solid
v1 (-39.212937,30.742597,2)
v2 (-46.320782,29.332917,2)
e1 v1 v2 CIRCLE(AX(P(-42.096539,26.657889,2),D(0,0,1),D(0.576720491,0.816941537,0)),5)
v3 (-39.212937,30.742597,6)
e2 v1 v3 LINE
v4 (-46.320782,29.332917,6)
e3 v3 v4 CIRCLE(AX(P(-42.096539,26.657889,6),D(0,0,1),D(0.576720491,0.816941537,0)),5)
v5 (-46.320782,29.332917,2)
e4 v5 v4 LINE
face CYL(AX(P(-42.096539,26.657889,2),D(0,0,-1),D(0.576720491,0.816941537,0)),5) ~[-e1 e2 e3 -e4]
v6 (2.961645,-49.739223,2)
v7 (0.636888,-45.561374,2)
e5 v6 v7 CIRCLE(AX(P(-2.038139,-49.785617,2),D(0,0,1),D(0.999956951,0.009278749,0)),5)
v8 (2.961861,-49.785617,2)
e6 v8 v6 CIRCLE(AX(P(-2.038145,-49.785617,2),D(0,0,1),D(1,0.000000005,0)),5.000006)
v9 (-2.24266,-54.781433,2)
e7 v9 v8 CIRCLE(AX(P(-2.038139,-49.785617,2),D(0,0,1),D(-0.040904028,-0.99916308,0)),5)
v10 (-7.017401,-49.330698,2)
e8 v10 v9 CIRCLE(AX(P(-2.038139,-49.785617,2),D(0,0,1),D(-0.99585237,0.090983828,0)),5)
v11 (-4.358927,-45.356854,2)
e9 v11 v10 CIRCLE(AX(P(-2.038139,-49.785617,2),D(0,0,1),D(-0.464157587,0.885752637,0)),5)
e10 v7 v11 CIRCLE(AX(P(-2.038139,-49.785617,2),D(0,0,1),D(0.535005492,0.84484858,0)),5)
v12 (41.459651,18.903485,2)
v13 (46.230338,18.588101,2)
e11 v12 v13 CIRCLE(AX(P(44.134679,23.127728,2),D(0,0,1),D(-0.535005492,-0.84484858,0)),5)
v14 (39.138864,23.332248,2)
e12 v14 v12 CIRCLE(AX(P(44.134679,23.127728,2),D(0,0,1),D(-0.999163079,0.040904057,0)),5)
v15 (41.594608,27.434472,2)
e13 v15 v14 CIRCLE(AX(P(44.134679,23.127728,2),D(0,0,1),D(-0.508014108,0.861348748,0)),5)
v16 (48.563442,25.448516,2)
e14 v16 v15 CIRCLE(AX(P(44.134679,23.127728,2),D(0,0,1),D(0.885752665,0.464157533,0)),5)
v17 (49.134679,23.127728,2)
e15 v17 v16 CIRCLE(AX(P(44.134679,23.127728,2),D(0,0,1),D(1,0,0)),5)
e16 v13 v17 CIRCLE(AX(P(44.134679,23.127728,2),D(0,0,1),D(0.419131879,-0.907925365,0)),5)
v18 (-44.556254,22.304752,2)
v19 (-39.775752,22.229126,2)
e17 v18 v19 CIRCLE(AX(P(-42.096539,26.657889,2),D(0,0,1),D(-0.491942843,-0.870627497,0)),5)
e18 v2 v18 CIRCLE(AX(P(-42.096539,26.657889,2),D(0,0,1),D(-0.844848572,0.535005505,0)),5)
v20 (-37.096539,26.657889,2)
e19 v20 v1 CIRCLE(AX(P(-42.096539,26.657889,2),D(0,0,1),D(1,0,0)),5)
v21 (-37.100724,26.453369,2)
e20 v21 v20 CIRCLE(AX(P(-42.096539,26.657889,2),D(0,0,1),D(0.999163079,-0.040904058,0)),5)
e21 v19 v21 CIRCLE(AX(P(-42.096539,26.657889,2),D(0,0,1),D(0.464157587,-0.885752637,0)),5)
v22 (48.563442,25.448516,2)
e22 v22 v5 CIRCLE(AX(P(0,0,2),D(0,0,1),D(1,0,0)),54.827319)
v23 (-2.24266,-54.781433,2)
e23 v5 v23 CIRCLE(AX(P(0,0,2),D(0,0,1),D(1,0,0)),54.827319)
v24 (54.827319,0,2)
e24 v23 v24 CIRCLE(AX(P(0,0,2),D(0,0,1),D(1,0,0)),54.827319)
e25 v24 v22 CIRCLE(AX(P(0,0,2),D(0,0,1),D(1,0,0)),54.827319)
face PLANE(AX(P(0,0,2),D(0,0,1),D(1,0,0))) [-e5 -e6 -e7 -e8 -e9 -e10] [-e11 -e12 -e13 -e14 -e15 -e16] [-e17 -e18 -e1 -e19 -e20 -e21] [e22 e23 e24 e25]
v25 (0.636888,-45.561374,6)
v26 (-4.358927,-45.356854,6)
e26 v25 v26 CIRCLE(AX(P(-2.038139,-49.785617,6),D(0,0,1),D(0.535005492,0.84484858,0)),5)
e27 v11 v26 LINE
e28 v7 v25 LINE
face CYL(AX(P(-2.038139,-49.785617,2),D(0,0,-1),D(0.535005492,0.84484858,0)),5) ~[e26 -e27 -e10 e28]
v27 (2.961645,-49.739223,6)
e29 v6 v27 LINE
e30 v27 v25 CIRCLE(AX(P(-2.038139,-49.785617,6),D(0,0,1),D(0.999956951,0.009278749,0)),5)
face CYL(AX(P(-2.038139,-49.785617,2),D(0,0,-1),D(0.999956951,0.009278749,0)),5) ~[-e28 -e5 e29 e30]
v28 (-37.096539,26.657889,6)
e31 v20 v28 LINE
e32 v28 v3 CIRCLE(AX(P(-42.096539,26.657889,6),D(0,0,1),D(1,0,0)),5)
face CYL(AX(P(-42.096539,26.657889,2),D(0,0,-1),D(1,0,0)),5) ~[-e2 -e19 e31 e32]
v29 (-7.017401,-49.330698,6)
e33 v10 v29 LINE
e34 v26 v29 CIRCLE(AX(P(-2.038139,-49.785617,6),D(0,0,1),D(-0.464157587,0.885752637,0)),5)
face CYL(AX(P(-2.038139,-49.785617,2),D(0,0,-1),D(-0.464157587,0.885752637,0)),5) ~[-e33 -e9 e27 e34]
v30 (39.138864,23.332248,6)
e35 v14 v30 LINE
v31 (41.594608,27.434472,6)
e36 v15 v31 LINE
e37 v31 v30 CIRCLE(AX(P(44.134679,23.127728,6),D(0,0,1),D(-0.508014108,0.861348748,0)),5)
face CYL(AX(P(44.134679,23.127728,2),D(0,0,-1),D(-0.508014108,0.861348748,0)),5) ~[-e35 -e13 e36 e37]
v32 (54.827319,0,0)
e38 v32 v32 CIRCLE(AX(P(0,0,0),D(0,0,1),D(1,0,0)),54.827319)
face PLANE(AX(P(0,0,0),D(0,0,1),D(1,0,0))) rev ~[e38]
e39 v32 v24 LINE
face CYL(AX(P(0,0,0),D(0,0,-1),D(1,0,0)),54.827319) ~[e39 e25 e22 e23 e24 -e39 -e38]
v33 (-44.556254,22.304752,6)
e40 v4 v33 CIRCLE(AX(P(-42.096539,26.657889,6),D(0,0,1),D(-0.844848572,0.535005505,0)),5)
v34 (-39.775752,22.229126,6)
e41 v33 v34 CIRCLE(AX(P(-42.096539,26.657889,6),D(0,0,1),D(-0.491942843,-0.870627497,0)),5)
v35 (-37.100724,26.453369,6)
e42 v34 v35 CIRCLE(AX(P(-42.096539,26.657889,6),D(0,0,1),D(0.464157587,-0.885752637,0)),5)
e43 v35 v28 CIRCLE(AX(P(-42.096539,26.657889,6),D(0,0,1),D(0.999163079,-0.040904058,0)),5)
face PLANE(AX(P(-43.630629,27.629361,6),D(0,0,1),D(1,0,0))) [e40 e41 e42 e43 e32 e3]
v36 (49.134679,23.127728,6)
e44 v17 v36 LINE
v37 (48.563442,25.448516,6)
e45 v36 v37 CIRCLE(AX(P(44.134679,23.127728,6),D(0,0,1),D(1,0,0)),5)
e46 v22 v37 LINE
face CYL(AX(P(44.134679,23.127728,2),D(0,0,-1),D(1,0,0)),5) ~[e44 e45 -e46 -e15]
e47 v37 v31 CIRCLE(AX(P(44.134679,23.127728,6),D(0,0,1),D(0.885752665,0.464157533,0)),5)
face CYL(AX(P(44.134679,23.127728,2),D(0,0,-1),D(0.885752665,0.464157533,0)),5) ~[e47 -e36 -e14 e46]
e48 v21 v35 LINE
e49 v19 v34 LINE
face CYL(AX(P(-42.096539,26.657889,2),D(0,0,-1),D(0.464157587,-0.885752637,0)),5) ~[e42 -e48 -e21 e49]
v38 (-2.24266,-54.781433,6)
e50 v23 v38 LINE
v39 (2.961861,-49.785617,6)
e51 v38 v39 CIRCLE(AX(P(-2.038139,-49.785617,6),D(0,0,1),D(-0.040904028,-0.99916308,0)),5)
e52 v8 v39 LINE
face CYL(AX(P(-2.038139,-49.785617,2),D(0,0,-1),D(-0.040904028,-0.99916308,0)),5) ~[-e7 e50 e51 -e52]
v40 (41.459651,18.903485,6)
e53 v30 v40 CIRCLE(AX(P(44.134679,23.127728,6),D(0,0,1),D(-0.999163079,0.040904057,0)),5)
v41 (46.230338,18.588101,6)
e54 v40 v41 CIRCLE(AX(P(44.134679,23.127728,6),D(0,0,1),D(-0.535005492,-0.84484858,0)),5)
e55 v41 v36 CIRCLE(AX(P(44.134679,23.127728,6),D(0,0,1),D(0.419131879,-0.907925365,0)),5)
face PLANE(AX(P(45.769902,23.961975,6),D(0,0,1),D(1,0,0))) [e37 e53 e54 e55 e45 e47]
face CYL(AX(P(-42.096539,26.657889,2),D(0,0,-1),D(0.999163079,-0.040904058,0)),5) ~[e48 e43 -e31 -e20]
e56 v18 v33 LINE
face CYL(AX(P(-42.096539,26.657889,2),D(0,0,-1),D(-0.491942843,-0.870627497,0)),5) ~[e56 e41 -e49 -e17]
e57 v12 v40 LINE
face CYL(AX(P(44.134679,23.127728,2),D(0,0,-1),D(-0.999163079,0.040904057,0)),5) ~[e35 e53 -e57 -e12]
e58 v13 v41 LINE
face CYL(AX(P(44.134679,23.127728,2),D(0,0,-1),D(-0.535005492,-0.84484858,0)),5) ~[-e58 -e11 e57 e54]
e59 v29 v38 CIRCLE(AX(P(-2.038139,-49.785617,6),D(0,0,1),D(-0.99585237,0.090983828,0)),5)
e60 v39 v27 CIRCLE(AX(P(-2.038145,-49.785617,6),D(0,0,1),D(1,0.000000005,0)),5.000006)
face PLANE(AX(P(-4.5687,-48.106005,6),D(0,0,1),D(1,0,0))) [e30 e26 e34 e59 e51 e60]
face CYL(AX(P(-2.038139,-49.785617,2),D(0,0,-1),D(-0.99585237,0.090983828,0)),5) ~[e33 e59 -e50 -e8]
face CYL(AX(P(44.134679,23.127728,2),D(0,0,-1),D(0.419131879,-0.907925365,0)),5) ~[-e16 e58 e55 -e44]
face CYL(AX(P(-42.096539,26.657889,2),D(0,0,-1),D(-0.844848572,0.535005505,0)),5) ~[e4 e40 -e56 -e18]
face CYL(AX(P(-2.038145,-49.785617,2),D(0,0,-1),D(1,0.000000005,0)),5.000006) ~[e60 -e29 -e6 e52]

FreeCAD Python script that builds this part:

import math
import FreeCAD as App
import Part
import Sketcher
from FreeCAD import Vector
Q = App.Units.Quantity

doc = App.newDocument("Part")
body = doc.addObject("PartDesign::Body", "Body")

sketch1 = doc.addObject("Sketcher::SketchObject", "Sketch")
body.addObject(sketch1)
sketch1.AttachmentSupport = (doc.XY_Plane, [""])
sketch1.MapMode = "FlatFace"
sketch1.addGeometry(Part.Circle(Vector(0, 0, 0), Vector(0, 0, 1), 54.827319), False)
sketch1.addConstraint([
    Sketcher.Constraint("Coincident", 0, 3, -1, 1),
    Sketcher.Constraint("Diameter", 0, Q("109.654637 mm")),
])
pad1 = doc.addObject("PartDesign::Pad", "Pad")
body.addObject(pad1)
pad1.Profile = sketch1
pad1.Length = 2

sketch2 = doc.addObject("Sketcher::SketchObject", "Sketch001")
body.addObject(sketch2)
sketch2.AttachmentSupport = (doc.XY_Plane, [""])
sketch2.MapMode = "FlatFace"
sketch2.AttachmentOffset = App.Placement(Vector(0, 0, 2), App.Rotation())
sketch2.addGeometry([
    Part.ArcOfCircle(Part.Circle(Vector(-42.096539, 26.657889, 0), Vector(0, 0, 1), 5), math.radians(54.779791), math.radians(147.655715)),
    Part.ArcOfCircle(Part.Circle(Vector(-42.096539, 26.657889, 0), Vector(0, 0, 1), 5), math.radians(147.655715), math.radians(240.531641)),
    Part.ArcOfCircle(Part.Circle(Vector(-42.096539, 26.657889, 0), Vector(0, 0, 1), 5), math.radians(-119.468359), math.radians(-62.344284)),
    Part.ArcOfCircle(Part.Circle(Vector(-42.096539, 26.657889, 0), Vector(0, 0, 1), 5), math.radians(-62.344284), math.radians(-2.344284)),
    Part.ArcOfCircle(Part.Circle(Vector(-42.096539, 26.657889, 0), Vector(0, 0, 1), 5), math.radians(-2.344284), math.radians(0)),
    Part.ArcOfCircle(Part.Circle(Vector(-42.096539, 26.657889, 0), Vector(0, 0, 1), 5), math.radians(0), math.radians(54.779791)),
    Part.ArcOfCircle(Part.Circle(Vector(44.134679, 23.127728, 0), Vector(0, 0, 1), 5), math.radians(-65.220209), math.radians(0)),
    Part.ArcOfCircle(Part.Circle(Vector(44.134679, 23.127728, 0), Vector(0, 0, 1), 5), math.radians(0), math.radians(27.655713)),
    Part.ArcOfCircle(Part.Circle(Vector(44.134679, 23.127728, 0), Vector(0, 0, 1), 5), math.radians(27.655713), math.radians(120.531641)),
    Part.ArcOfCircle(Part.Circle(Vector(44.134679, 23.127728, 0), Vector(0, 0, 1), 5), math.radians(120.531641), math.radians(177.655716)),
    Part.ArcOfCircle(Part.Circle(Vector(44.134679, 23.127728, 0), Vector(0, 0, 1), 5), math.radians(177.655716), math.radians(237.655716)),
    Part.ArcOfCircle(Part.Circle(Vector(44.134679, 23.127728, 0), Vector(0, 0, 1), 5), math.radians(-122.344284), math.radians(-65.220209)),
    Part.ArcOfCircle(Part.Circle(Vector(-2.038139, -49.785617, 0), Vector(0, 0, 1), 5), math.radians(57.655716), math.radians(117.655716)),
    Part.ArcOfCircle(Part.Circle(Vector(-2.038139, -49.785617, 0), Vector(0, 0, 1), 5), math.radians(117.655716), math.radians(174.779791)),
    Part.ArcOfCircle(Part.Circle(Vector(-2.038139, -49.785617, 0), Vector(0, 0, 1), 5), math.radians(174.779791), math.radians(267.655718)),
    Part.ArcOfCircle(Part.Circle(Vector(-2.038139, -49.785617, 0), Vector(0, 0, 1), 5), math.radians(-92.344282), math.radians(0)),
    Part.ArcOfCircle(Part.Circle(Vector(-2.038145, -49.785617, 0), Vector(0, 0, 1), 5.000006), math.radians(0), math.radians(0.53164)),
    Part.ArcOfCircle(Part.Circle(Vector(-2.038139, -49.785617, 0), Vector(0, 0, 1), 5), math.radians(0.531641), math.radians(57.655716)),
], False)
sketch2.addConstraint([
    Sketcher.Constraint("Tangent", 0, 2, 1, 1),
    Sketcher.Constraint("Tangent", 1, 2, 2, 1),
    Sketcher.Constraint("Tangent", 2, 2, 3, 1),
    Sketcher.Constraint("Tangent", 3, 2, 4, 1),
    Sketcher.Constraint("Tangent", 4, 2, 5, 1),
    Sketcher.Constraint("Tangent", 5, 2, 0, 1),
    Sketcher.Constraint("Tangent", 6, 2, 7, 1),
    Sketcher.Constraint("Tangent", 7, 2, 8, 1),
    Sketcher.Constraint("Tangent", 8, 2, 9, 1),
    Sketcher.Constraint("Tangent", 9, 2, 10, 1),
    Sketcher.Constraint("Tangent", 10, 2, 11, 1),
    Sketcher.Constraint("Tangent", 11, 2, 6, 1),
    Sketcher.Constraint("Tangent", 12, 2, 13, 1),
    Sketcher.Constraint("Tangent", 13, 2, 14, 1),
    Sketcher.Constraint("Tangent", 14, 2, 15, 1),
    Sketcher.Constraint("Tangent", 15, 2, 16, 1),
    Sketcher.Constraint("Tangent", 16, 2, 17, 1),
    Sketcher.Constraint("Tangent", 17, 2, 12, 1),
    Sketcher.Constraint("Coincident", 2, 3, 0, 3),
    Sketcher.Constraint("Coincident", 8, 3, 6, 3),
    Sketcher.Constraint("Coincident", 14, 3, 12, 3),
    Sketcher.Constraint("Equal", 2, 3),
    Sketcher.Constraint("Equal", 5, 6),
    Sketcher.Constraint("Equal", 8, 9),
    Sketcher.Constraint("Equal", 11, 12),
    Sketcher.Constraint("Equal", 15, 17),
    Sketcher.Constraint("Horizontal", 5, 3, 4, 2),
    Sketcher.Constraint("Horizontal", 11, 3, 6, 2),
    Sketcher.Constraint("Horizontal", 17, 3, 15, 2),
    Sketcher.Constraint("Radius", 0, Q("5 mm")),
    Sketcher.Constraint("DistanceY", -1, 1, 11, 2, Q("18.588101 mm")),
    Sketcher.Constraint("DistanceX", 13, 2, -1, 1, Q("7.017401 mm")),
    Sketcher.Constraint("DistanceY", 13, 2, -1, 1, Q("49.330698 mm")),
    Sketcher.Constraint("DistanceX", 4, 3, 12, 3, Q("40.0584 mm")),
    Sketcher.Constraint("DistanceX", 0, 3, -1, 1, Q("42.096539 mm")),
    Sketcher.Constraint("DistanceY", -1, 1, 0, 3, Q("26.657889 mm")),
    Sketcher.Constraint("DistanceX", -1, 1, 6, 3, Q("44.134679 mm")),
    Sketcher.Constraint("DistanceY", -1, 1, 6, 3, Q("23.127728 mm")),
    Sketcher.Constraint("DistanceY", -1, 1, 1, 2, Q("22.304752 mm")),
    Sketcher.Constraint("DistanceX", 2, 2, -1, 1, Q("39.775752 mm")),
    Sketcher.Constraint("DistanceY", -1, 1, 3, 2, Q("26.453369 mm")),
    Sketcher.Constraint("DistanceX", -1, 1, 8, 2, Q("41.594608 mm")),
    Sketcher.Constraint("DistanceY", -1, 1, 9, 2, Q("23.332248 mm")),
    Sketcher.Constraint("DistanceX", -1, 1, 10, 2, Q("41.459651 mm")),
    Sketcher.Constraint("DistanceX", 14, 2, -1, 1, Q("2.24266 mm")),
    Sketcher.Constraint("DistanceY", 16, 2, 17, 2, Q("4.177849 mm")),
    Sketcher.Constraint("DistanceY", 17, 2, 12, 2, Q("0.20452 mm")),
    Sketcher.Constraint("DistanceX", 0, 2, -1, 1, Q("46.320782 mm")),
    Sketcher.Constraint("DistanceX", 5, 2, -1, 1, Q("39.212937 mm")),
    Sketcher.Constraint("DistanceX", -1, 1, 7, 2, Q("48.563442 mm")),
    Sketcher.Constraint("DistanceX", 12, 2, -1, 1, Q("4.358927 mm")),
])
pad2 = doc.addObject("PartDesign::Pad", "Pad001")
body.addObject(pad2)
pad2.Profile = sketch2
pad2.Length = 4

doc.recompute()
